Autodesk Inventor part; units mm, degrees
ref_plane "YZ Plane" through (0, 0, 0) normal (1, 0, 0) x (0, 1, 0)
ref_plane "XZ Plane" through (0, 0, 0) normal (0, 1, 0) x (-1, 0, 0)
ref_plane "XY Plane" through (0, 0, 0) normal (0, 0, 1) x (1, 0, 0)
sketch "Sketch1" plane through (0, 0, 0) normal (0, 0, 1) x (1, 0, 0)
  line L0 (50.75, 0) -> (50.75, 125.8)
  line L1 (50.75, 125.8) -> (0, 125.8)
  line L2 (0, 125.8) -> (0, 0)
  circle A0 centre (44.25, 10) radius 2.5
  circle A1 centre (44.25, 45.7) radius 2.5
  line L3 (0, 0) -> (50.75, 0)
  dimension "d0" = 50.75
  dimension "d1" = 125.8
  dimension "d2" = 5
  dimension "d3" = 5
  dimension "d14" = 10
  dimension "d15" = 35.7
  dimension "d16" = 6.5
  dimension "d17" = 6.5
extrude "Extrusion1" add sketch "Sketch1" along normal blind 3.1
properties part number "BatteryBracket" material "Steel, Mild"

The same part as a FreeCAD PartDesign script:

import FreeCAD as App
import Part
import Sketcher
Q = App.Units.Quantity


def add_polygon(sketch, points):
    """Adds a closed chain of lines whose ends are joined by coincident constraints."""
    first, n = sketch.GeometryCount, len(points)
    for a, b in zip(points, points[1:] + points[:1]):
        sketch.addGeometry(Part.LineSegment(App.Vector(*a, 0), App.Vector(*b, 0)), False)
    for i in range(n):
        sketch.addConstraint(Sketcher.Constraint("Coincident", first + i, 2, first + (i + 1) % n, 1))

doc = App.newDocument("Part")
body = doc.addObject("PartDesign::Body", "Body")

# Sketch on XY plane
sketch1 = body.newObject("Sketcher::SketchObject", "Sketch")
sketch1.AttachmentSupport = (doc.getObject("XY_Plane"), [""])
sketch1.MapMode = "FlatFace"
add_polygon(sketch1, [(0, 0), (50.75, 0), (50.75, 125.8), (0, 125.8)])  # lines 0-3
sketch1.addGeometry(Part.Circle(App.Vector(44.25, 10, 0), App.Vector(0, 0, 1), 2.5), False)  # 4
sketch1.addGeometry(Part.Circle(App.Vector(44.25, 45.7, 0), App.Vector(0, 0, 1), 2.5), False)  # 5
sketch1.addConstraint([
    Sketcher.Constraint("Horizontal", 0),
    Sketcher.Constraint("Vertical", 1),
    Sketcher.Constraint("Horizontal", 2),
    Sketcher.Constraint("Vertical", 3),
    Sketcher.Constraint("Coincident", 3, 2, -1, 1),
    Sketcher.Constraint("Equal", 4, 5),
    Sketcher.Constraint("Vertical", 4, 3, 5, 3),
    Sketcher.Constraint("Diameter", 4, Q("5 mm")),
    Sketcher.Constraint("DistanceY", 1, 1, 1, 2, Q("125.8 mm")),
    Sketcher.Constraint("DistanceY", -1, 1, 4, 3, Q("10 mm")),
    Sketcher.Constraint("DistanceX", 0, 1, 0, 2, Q("50.75 mm")),
    Sketcher.Constraint("DistanceY", 4, 3, 5, 3, Q("35.7 mm")),
    Sketcher.Constraint("DistanceX", 4, 3, 0, 2, Q("6.5 mm")),
])
pad1 = body.newObject("PartDesign::Pad", "Pad")
pad1.Profile = sketch1
pad1.Length = 3.1

doc.recompute()
